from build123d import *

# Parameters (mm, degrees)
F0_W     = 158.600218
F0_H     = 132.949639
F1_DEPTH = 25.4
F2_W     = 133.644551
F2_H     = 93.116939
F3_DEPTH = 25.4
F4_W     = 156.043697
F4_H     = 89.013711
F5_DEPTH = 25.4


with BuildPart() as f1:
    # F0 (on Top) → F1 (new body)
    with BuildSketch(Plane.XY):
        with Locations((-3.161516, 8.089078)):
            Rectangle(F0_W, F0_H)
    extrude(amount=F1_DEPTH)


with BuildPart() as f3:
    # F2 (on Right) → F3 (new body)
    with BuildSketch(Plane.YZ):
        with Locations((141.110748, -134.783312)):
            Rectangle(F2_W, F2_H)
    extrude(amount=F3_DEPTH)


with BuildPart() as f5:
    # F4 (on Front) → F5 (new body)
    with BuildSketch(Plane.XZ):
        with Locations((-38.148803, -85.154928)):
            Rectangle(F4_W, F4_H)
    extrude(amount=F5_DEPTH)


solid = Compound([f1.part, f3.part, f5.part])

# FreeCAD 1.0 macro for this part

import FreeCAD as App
import Part
import Sketcher
Q = App.Units.Quantity


def add_polygon(sketch, points):
    """Adds a closed chain of lines whose ends are joined by coincident constraints."""
    first, n = sketch.GeometryCount, len(points)
    for a, b in zip(points, points[1:] + points[:1]):
        sketch.addGeometry(Part.LineSegment(App.Vector(*a, 0), App.Vector(*b, 0)), False)
    for i in range(n):
        sketch.addConstraint(Sketcher.Constraint("Coincident", first + i, 2, first + (i + 1) % n, 1))

doc = App.newDocument("Part")
body = doc.addObject("PartDesign::Body", "Body")

# Sketch on XY plane
sketch1 = body.newObject("Sketcher::SketchObject", "Sketch")
sketch1.AttachmentSupport = (doc.getObject("XY_Plane"), [""])
sketch1.MapMode = "FlatFace"
add_polygon(sketch1, [(-82.461625, 74.563897), (-82.461625, -58.385742), (76.138593, -58.385742), (76.138593, 74.563897)])  # lines 0-3
sketch1.addConstraint([
    Sketcher.Constraint("Vertical", 0),
    Sketcher.Constraint("Horizontal", 1),
    Sketcher.Constraint("Vertical", 2),
    Sketcher.Constraint("Horizontal", 3),
    Sketcher.Constraint("DistanceY", 0, 2, 0, 1, 132.949639),
    Sketcher.Constraint("DistanceX", 1, 1, 1, 2, 158.600218),
    Sketcher.Constraint("DistanceY", 0, 2, -1, 1, 58.385742),
    Sketcher.Constraint("DistanceX", 0, 2, -1, 1, 82.461625),
])
pad1 = body.newObject("PartDesign::Pad", "Pad")
pad1.Profile = sketch1
pad1.Length = Q("1 in")
body2 = doc.addObject("PartDesign::Body", "Body001")

# Sketch on YZ plane
sketch2 = body2.newObject("Sketcher::SketchObject", "Sketch001")
sketch2.AttachmentSupport = (doc.getObject("YZ_Plane001"), [""])
sketch2.MapMode = "FlatFace"
add_polygon(sketch2, [(74.288472, -88.224842), (74.288472, -181.341781), (207.933023, -181.341781), (207.933023, -88.224842)])  # lines 0-3
sketch2.addConstraint([
    Sketcher.Constraint("Vertical", 0),
    Sketcher.Constraint("Horizontal", 1),
    Sketcher.Constraint("Vertical", 2),
    Sketcher.Constraint("Horizontal", 3),
    Sketcher.Constraint("DistanceX", 1, 1, 1, 2, 133.644551),
    Sketcher.Constraint("DistanceY", 0, 2, 0, 1, 93.116939),
    Sketcher.Constraint("DistanceY", 0, 2, -1, 1, 181.341781),
    Sketcher.Constraint("DistanceX", -1, 1, 0, 2, 74.288472),
])
pad2 = body2.newObject("PartDesign::Pad", "Pad001")
pad2.Profile = sketch2
pad2.Length = Q("1 in")
body3 = doc.addObject("PartDesign::Body", "Body002")

# Sketch on XZ plane
sketch3 = body3.newObject("Sketcher::SketchObject", "Sketch002")
sketch3.AttachmentSupport = (doc.getObject("XZ_Plane002"), [""])
sketch3.MapMode = "FlatFace"
add_polygon(sketch3, [(-116.170652, -40.648072), (-116.170652, -129.661784), (39.873046, -129.661784), (39.873046, -40.648072)])  # lines 0-3
sketch3.addConstraint([
    Sketcher.Constraint("Vertical", 0),
    Sketcher.Constraint("Horizontal", 1),
    Sketcher.Constraint("Vertical", 2),
    Sketcher.Constraint("Horizontal", 3),
    Sketcher.Constraint("DistanceY", 0, 2, 0, 1, 89.013711),
    Sketcher.Constraint("DistanceX", 1, 1, 1, 2, 156.043697),
    Sketcher.Constraint("DistanceX", 0, 2, -1, 1, 116.170652),
    Sketcher.Constraint("DistanceY", 0, 2, -1, 1, 129.661784),
])
pad3 = body3.newObject("PartDesign::Pad", "Pad002")
pad3.Profile = sketch3
pad3.Length = Q("1 in")

doc.recompute()
